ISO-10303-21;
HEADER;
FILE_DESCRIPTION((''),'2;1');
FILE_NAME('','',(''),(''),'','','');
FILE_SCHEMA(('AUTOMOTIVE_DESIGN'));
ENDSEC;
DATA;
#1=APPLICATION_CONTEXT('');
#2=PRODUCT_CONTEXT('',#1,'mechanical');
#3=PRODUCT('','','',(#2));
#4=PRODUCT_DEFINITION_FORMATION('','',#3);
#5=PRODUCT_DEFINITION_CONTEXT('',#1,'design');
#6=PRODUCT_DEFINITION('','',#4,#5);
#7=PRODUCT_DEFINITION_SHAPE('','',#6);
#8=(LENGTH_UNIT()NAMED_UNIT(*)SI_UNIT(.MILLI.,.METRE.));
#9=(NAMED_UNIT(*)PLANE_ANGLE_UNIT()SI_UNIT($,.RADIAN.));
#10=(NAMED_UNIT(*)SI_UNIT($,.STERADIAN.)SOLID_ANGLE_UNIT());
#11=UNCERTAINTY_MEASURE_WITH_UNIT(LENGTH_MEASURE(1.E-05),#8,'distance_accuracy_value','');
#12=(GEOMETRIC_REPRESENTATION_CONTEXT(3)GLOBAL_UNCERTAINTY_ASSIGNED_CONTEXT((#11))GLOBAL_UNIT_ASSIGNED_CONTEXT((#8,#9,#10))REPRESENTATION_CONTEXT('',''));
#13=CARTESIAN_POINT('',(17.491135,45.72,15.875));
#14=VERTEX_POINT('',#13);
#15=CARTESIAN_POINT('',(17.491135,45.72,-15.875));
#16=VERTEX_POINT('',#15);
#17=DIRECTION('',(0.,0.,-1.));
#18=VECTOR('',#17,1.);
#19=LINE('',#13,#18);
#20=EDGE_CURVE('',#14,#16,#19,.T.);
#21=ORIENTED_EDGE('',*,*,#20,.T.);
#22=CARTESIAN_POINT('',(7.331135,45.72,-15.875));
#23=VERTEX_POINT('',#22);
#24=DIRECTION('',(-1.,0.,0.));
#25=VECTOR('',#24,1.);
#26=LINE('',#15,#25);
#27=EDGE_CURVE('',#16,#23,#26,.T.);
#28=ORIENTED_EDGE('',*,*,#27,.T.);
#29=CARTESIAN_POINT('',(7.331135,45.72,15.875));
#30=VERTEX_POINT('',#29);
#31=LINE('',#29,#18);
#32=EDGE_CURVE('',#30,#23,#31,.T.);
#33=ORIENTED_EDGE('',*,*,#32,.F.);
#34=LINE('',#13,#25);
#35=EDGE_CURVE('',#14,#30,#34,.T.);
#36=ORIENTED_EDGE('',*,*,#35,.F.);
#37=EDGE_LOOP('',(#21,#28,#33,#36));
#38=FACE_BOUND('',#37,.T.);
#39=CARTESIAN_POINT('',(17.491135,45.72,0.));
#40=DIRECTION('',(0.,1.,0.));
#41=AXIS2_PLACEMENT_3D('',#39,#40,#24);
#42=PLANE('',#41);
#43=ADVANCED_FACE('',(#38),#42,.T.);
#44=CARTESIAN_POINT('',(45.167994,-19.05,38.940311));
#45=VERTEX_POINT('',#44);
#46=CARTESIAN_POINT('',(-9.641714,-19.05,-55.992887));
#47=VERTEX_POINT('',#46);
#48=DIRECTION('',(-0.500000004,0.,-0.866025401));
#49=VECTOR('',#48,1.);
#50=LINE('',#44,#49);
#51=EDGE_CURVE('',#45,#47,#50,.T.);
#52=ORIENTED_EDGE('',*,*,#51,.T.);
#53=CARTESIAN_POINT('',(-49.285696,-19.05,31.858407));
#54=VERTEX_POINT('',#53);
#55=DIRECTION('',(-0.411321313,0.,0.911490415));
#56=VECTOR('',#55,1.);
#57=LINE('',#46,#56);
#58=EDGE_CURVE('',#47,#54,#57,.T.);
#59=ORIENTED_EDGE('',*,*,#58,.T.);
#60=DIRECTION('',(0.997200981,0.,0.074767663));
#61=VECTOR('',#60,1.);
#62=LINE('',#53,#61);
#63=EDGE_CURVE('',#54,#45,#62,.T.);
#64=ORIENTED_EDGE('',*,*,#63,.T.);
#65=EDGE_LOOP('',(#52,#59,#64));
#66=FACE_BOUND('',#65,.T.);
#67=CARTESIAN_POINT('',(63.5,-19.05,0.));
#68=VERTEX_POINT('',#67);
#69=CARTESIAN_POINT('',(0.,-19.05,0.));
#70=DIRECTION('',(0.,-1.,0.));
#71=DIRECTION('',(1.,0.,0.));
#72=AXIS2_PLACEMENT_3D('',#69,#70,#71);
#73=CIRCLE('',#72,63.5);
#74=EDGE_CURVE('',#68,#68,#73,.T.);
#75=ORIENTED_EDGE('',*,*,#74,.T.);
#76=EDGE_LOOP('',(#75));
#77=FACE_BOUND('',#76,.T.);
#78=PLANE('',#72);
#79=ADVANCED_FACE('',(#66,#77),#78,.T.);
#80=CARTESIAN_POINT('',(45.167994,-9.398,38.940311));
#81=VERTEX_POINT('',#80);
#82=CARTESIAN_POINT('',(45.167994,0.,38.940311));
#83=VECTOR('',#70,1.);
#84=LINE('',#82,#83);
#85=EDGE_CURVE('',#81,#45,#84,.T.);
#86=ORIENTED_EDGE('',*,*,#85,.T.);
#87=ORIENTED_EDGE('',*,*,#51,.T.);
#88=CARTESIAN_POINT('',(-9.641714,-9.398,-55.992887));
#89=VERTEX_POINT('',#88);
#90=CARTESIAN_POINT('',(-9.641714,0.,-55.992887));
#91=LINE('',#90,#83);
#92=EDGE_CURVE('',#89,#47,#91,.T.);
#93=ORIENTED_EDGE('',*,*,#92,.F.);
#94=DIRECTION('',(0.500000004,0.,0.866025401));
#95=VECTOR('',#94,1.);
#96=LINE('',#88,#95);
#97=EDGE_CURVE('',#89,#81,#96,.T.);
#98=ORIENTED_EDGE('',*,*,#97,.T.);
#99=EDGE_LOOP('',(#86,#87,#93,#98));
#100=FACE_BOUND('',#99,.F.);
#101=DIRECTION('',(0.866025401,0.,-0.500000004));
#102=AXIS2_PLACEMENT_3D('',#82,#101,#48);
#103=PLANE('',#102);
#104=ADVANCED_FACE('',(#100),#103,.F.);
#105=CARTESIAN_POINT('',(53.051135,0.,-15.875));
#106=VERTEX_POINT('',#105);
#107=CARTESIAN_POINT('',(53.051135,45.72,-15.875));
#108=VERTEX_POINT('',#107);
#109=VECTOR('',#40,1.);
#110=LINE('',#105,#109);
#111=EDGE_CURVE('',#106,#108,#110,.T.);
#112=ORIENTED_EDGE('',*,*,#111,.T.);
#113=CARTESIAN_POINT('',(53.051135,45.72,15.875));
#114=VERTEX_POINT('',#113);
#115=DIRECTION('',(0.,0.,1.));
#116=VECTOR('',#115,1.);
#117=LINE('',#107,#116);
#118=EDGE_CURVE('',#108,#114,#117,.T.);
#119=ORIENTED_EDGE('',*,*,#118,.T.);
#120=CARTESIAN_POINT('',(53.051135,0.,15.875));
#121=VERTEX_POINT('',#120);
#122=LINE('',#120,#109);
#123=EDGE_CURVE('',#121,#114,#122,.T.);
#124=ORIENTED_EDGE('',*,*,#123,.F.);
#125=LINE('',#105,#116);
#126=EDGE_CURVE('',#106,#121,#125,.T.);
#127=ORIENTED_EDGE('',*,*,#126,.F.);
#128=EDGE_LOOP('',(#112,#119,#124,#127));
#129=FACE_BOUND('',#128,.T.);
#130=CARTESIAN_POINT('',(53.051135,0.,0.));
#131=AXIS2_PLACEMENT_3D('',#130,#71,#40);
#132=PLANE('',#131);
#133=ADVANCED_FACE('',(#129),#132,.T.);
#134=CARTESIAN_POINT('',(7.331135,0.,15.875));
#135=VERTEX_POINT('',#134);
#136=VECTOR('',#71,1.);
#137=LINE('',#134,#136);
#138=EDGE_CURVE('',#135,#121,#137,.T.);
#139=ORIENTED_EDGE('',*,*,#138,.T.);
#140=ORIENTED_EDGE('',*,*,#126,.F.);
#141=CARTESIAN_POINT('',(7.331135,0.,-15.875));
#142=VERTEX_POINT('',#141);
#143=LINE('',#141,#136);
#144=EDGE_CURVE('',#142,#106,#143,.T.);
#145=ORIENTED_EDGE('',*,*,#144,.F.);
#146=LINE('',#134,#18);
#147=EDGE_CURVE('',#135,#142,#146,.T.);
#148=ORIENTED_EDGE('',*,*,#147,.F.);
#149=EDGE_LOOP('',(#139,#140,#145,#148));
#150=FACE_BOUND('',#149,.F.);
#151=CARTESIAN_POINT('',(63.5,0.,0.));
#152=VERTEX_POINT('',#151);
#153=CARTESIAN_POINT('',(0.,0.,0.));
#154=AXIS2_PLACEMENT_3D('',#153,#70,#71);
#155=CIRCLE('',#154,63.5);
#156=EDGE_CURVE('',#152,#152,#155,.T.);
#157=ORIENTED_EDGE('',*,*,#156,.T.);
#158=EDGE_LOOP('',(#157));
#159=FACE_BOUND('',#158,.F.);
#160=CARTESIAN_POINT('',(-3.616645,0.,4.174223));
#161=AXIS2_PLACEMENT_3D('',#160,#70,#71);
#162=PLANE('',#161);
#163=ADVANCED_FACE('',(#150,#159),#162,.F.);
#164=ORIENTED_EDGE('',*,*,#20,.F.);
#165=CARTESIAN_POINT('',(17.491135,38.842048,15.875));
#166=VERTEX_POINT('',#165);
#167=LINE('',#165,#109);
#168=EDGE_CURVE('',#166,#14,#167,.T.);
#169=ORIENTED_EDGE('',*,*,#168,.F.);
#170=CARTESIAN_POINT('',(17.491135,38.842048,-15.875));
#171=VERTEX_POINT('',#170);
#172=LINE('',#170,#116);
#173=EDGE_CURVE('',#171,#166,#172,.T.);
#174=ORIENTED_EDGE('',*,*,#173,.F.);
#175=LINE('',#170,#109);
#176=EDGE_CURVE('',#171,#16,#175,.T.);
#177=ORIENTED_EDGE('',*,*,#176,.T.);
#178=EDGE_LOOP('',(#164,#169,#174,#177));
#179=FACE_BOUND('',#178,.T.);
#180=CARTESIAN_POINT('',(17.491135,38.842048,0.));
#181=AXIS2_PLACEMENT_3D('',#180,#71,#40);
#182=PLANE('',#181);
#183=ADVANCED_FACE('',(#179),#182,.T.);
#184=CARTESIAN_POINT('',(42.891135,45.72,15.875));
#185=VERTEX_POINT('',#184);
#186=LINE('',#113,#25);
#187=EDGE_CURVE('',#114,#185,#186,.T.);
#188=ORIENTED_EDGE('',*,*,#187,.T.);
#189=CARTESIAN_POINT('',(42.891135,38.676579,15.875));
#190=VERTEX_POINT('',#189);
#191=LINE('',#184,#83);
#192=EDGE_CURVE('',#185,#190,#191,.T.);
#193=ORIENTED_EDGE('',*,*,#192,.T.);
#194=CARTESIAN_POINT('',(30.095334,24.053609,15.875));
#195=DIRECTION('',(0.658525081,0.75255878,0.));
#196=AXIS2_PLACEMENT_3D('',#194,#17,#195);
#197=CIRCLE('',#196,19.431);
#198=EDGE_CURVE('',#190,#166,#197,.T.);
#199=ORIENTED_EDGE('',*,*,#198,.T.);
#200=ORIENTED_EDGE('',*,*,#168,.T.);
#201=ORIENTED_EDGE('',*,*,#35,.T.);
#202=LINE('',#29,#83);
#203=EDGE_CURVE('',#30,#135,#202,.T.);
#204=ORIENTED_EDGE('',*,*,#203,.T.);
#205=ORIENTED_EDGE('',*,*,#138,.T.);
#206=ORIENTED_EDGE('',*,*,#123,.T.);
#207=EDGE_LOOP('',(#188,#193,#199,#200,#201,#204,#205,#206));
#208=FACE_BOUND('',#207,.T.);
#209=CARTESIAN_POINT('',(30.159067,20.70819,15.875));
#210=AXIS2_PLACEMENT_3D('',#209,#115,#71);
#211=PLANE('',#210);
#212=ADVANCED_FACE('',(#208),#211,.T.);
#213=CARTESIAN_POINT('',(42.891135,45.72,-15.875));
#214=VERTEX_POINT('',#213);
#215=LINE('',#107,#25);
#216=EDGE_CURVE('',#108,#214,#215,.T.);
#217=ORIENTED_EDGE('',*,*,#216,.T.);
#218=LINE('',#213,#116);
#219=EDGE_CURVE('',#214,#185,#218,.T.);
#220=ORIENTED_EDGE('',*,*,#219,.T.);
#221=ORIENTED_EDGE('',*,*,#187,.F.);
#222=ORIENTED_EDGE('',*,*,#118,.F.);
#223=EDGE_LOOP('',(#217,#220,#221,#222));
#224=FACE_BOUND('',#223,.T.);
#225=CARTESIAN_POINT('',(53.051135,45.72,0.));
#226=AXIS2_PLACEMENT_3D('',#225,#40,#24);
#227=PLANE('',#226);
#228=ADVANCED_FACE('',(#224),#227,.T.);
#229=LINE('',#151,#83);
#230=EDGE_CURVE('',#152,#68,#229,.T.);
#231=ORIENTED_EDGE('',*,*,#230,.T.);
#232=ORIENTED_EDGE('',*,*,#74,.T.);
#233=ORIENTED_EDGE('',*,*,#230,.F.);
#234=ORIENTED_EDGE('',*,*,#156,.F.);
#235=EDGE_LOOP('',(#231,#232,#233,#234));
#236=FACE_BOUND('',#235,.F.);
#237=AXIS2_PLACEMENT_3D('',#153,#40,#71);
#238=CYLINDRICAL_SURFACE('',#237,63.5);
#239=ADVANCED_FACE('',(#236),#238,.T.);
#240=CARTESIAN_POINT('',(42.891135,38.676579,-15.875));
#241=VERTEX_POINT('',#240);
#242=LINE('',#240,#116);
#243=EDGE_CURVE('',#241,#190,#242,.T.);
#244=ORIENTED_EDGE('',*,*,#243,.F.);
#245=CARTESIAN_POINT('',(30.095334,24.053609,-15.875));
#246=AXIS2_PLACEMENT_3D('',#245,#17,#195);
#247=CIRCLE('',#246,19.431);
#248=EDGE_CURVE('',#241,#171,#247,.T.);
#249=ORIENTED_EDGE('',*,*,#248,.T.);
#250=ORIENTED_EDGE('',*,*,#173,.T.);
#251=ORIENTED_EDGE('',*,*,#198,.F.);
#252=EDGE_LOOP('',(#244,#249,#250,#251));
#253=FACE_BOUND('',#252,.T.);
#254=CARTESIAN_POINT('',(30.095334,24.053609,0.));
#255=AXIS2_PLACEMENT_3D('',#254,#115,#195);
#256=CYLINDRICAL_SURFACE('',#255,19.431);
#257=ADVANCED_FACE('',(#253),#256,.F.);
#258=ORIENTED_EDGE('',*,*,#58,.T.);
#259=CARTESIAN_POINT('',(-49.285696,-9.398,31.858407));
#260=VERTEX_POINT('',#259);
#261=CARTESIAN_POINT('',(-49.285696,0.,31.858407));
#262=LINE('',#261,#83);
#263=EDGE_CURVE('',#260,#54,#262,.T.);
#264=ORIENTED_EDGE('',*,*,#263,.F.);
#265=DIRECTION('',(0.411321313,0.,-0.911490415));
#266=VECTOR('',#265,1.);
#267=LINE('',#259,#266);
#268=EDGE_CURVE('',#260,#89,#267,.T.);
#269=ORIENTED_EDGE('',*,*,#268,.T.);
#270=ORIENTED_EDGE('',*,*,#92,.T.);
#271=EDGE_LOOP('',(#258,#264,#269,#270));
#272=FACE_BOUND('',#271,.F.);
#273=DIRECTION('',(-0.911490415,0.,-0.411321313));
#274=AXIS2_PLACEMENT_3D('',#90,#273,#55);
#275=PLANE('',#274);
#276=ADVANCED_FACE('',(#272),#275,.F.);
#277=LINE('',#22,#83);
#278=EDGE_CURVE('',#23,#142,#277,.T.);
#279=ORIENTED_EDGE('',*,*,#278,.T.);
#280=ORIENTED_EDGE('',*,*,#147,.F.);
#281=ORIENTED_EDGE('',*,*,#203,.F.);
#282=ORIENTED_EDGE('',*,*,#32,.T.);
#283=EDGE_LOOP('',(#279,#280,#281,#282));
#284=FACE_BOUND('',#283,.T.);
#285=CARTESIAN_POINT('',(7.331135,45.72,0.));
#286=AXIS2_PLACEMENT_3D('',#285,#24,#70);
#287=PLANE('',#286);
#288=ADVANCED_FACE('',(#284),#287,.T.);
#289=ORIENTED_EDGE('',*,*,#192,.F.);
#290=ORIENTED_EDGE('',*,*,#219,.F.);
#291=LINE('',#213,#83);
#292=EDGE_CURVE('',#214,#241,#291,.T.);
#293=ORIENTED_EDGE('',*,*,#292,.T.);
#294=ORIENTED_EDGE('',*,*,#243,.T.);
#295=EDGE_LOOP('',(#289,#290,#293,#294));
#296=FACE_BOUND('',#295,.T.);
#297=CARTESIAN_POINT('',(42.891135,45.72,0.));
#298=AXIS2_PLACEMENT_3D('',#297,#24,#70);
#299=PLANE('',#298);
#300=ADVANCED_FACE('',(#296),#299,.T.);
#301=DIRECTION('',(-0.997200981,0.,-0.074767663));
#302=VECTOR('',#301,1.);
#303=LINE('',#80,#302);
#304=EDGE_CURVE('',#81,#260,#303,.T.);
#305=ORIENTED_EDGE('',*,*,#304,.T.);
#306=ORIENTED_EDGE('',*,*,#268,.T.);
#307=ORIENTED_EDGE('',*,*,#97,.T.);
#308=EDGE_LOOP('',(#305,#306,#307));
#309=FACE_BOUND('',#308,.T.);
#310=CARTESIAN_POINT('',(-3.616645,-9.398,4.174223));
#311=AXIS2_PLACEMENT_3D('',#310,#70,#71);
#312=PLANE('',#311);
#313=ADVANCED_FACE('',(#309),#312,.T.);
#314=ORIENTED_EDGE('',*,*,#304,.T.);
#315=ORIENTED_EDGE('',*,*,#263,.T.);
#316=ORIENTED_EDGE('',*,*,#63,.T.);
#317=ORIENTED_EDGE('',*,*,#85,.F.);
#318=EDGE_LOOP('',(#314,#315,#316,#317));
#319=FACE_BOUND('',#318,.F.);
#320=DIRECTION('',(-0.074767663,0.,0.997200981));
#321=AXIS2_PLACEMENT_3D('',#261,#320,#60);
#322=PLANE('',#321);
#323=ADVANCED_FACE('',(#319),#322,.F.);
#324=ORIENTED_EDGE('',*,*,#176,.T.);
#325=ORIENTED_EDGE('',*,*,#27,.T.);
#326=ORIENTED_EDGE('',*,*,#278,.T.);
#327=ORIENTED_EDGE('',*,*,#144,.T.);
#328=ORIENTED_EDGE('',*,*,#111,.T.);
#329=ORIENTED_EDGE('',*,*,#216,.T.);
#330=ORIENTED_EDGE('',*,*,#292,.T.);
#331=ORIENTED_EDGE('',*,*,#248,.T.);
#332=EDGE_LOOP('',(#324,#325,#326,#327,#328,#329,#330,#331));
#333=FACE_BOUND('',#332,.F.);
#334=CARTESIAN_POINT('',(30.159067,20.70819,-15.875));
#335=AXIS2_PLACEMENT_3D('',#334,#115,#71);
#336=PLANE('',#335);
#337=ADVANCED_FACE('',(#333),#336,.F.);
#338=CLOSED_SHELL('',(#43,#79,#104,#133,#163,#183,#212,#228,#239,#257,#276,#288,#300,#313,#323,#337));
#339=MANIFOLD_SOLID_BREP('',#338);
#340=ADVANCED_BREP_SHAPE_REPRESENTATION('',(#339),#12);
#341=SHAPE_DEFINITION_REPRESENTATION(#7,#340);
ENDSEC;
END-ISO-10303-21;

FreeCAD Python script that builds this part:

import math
import FreeCAD as App
import Part
import Sketcher
from FreeCAD import Vector
Q = App.Units.Quantity


def add_polygon(sketch, points):
    """Adds a closed chain of lines whose ends are joined by coincident constraints."""
    first, n = sketch.GeometryCount, len(points)
    for a, b in zip(points, points[1:] + points[:1]):
        sketch.addGeometry(Part.LineSegment(App.Vector(*a, 0), App.Vector(*b, 0)), False)
    for i in range(n):
        sketch.addConstraint(Sketcher.Constraint("Coincident", first + i, 2, first + (i + 1) % n, 1))

doc = App.newDocument("Part")
body = doc.addObject("PartDesign::Body", "Body")

sketch1 = body.newObject("Sketcher::SketchObject", "Sketch")
sketch1.AttachmentSupport = (doc.getObject("XZ_Plane"), [""])
sketch1.MapMode = "FlatFace"
sketch1.addGeometry(Part.Circle(Vector(0, 0, 0), Vector(0, 0, 1), 63.5), False)
add_polygon(sketch1, [(-9.641714, -55.992887), (-49.285696, 31.858407), (45.167994, 38.940311)])
sketch1.addConstraint([
    Sketcher.Constraint("Coincident", 0, 3, -1, 1),
    Sketcher.Constraint("Diameter", 0, Q("5 in")),
    Sketcher.Constraint("Angle", 3, Q("-120 deg")),
    Sketcher.Constraint("DistanceY", 3, 2, 2, 2, 94.933198),
    Sketcher.Constraint("Distance", 2, 94.71881),
    Sketcher.Constraint("DistanceY", -1, 1, 2, 2, 38.940311),
    Sketcher.Constraint("DistanceX", 1, 2, 2, 2, 94.45369),
    Sketcher.Constraint("DistanceX", 1, 2, -1, 1, 49.285696),
])
pad1 = body.newObject("PartDesign::Pad", "Pad")
pad1.Profile = sketch1
pad1.Length = Q("0.75 in")

sketch2 = body.newObject("Sketcher::SketchObject", "Sketch001")
sketch2.AttachmentSupport = (doc.getObject("XZ_Plane"), [""])
sketch2.MapMode = "FlatFace"
add_polygon(sketch2, [(-9.641714, -55.992887), (45.167994, 38.940311), (-49.285696, 31.858407)])
sketch2.addConstraint([
    Sketcher.Constraint("Angle", 0, Q("60 deg")),
    Sketcher.Constraint("DistanceY", 2, 2, 0, 2, 94.933198),
    Sketcher.Constraint("Distance", 1, 94.71881),
    Sketcher.Constraint("DistanceY", -1, 1, 0, 2, 38.940311),
    Sketcher.Constraint("DistanceX", 1, 2, 0, 2, 94.45369),
    Sketcher.Constraint("DistanceX", -1, 1, 0, 2, 45.167994),
])
pad2 = body.newObject("PartDesign::Pad", "Pad001")
pad2.Profile = sketch2
pad2.Length = Q("0.37 in")

sketch3 = body.newObject("Sketcher::SketchObject", "Sketch002")
sketch3.AttachmentSupport = (doc.getObject("XY_Plane"), [""])
sketch3.MapMode = "FlatFace"
sketch3.addGeometry([
    Part.LineSegment(Vector(7.331135, 0, 0), Vector(53.051135, 0, 0)),
    Part.LineSegment(Vector(53.051135, 0, 0), Vector(53.051135, 45.72, 0)),
    Part.LineSegment(Vector(53.051135, 45.72, 0), Vector(42.891135, 45.72, 0)),
    Part.LineSegment(Vector(42.891135, 45.72, 0), Vector(42.891135, 38.676579, 0)),
    Part.ArcOfCircle(Part.Circle(Vector(30.095334, 24.053609, 0), Vector(0, 0, 1), 19.431), math.radians(130.440985), math.radians(408.812516)),
    Part.LineSegment(Vector(17.491135, 38.842048, 0), Vector(17.491135, 45.72, 0)),
    Part.LineSegment(Vector(17.491135, 45.72, 0), Vector(7.331135, 45.72, 0)),
    Part.LineSegment(Vector(7.331135, 45.72, 0), Vector(7.331135, 0, 0)),
], False)
sketch3.addConstraint([
    Sketcher.Constraint("Coincident", 0, 2, 1, 1),
    Sketcher.Constraint("Coincident", 1, 2, 2, 1),
    Sketcher.Constraint("Coincident", 2, 2, 3, 1),
    Sketcher.Constraint("Coincident", 3, 2, 4, 2),
    Sketcher.Constraint("Coincident", 4, 1, 5, 1),
    Sketcher.Constraint("Coincident", 5, 2, 6, 1),
    Sketcher.Constraint("Coincident", 6, 2, 7, 1),
    Sketcher.Constraint("Coincident", 7, 2, 0, 1),
    Sketcher.Constraint("Horizontal", 0),
    Sketcher.Constraint("Vertical", 1),
    Sketcher.Constraint("Horizontal", 2),
    Sketcher.Constraint("Vertical", 3),
    Sketcher.Constraint("Vertical", 5),
    Sketcher.Constraint("Horizontal", 6),
    Sketcher.Constraint("Vertical", 7),
    Sketcher.Constraint("PointOnObject", 0, 2, -1),
    Sketcher.Constraint("Horizontal", 2, 2, 5, 2),
    Sketcher.Constraint("Equal", 2, 6),
    Sketcher.Constraint("Equal", 0, 1),
    Sketcher.Constraint("DistanceX", 0, 1, 0, 2, Q("1.8 in")),
    Sketcher.Constraint("DistanceX", 2, 2, 2, 1, Q("0.4 in")),
    Sketcher.Constraint("Radius", 4, Q("0.765 in")),
    Sketcher.Constraint("DistanceY", 3, 2, 3, 1, Q("0.2773 in")),
    Sketcher.Constraint("DistanceX", 4, 3, 0, 2, 22.955801),
    Sketcher.Constraint("DistanceX", -1, 1, 4, 3, 30.095334),
])
pad3 = body.newObject("PartDesign::Pad", "Pad002")
pad3.Profile = sketch3
pad3.Length = Q("1.25 in")
pad3.Midplane = True

doc.recompute()
